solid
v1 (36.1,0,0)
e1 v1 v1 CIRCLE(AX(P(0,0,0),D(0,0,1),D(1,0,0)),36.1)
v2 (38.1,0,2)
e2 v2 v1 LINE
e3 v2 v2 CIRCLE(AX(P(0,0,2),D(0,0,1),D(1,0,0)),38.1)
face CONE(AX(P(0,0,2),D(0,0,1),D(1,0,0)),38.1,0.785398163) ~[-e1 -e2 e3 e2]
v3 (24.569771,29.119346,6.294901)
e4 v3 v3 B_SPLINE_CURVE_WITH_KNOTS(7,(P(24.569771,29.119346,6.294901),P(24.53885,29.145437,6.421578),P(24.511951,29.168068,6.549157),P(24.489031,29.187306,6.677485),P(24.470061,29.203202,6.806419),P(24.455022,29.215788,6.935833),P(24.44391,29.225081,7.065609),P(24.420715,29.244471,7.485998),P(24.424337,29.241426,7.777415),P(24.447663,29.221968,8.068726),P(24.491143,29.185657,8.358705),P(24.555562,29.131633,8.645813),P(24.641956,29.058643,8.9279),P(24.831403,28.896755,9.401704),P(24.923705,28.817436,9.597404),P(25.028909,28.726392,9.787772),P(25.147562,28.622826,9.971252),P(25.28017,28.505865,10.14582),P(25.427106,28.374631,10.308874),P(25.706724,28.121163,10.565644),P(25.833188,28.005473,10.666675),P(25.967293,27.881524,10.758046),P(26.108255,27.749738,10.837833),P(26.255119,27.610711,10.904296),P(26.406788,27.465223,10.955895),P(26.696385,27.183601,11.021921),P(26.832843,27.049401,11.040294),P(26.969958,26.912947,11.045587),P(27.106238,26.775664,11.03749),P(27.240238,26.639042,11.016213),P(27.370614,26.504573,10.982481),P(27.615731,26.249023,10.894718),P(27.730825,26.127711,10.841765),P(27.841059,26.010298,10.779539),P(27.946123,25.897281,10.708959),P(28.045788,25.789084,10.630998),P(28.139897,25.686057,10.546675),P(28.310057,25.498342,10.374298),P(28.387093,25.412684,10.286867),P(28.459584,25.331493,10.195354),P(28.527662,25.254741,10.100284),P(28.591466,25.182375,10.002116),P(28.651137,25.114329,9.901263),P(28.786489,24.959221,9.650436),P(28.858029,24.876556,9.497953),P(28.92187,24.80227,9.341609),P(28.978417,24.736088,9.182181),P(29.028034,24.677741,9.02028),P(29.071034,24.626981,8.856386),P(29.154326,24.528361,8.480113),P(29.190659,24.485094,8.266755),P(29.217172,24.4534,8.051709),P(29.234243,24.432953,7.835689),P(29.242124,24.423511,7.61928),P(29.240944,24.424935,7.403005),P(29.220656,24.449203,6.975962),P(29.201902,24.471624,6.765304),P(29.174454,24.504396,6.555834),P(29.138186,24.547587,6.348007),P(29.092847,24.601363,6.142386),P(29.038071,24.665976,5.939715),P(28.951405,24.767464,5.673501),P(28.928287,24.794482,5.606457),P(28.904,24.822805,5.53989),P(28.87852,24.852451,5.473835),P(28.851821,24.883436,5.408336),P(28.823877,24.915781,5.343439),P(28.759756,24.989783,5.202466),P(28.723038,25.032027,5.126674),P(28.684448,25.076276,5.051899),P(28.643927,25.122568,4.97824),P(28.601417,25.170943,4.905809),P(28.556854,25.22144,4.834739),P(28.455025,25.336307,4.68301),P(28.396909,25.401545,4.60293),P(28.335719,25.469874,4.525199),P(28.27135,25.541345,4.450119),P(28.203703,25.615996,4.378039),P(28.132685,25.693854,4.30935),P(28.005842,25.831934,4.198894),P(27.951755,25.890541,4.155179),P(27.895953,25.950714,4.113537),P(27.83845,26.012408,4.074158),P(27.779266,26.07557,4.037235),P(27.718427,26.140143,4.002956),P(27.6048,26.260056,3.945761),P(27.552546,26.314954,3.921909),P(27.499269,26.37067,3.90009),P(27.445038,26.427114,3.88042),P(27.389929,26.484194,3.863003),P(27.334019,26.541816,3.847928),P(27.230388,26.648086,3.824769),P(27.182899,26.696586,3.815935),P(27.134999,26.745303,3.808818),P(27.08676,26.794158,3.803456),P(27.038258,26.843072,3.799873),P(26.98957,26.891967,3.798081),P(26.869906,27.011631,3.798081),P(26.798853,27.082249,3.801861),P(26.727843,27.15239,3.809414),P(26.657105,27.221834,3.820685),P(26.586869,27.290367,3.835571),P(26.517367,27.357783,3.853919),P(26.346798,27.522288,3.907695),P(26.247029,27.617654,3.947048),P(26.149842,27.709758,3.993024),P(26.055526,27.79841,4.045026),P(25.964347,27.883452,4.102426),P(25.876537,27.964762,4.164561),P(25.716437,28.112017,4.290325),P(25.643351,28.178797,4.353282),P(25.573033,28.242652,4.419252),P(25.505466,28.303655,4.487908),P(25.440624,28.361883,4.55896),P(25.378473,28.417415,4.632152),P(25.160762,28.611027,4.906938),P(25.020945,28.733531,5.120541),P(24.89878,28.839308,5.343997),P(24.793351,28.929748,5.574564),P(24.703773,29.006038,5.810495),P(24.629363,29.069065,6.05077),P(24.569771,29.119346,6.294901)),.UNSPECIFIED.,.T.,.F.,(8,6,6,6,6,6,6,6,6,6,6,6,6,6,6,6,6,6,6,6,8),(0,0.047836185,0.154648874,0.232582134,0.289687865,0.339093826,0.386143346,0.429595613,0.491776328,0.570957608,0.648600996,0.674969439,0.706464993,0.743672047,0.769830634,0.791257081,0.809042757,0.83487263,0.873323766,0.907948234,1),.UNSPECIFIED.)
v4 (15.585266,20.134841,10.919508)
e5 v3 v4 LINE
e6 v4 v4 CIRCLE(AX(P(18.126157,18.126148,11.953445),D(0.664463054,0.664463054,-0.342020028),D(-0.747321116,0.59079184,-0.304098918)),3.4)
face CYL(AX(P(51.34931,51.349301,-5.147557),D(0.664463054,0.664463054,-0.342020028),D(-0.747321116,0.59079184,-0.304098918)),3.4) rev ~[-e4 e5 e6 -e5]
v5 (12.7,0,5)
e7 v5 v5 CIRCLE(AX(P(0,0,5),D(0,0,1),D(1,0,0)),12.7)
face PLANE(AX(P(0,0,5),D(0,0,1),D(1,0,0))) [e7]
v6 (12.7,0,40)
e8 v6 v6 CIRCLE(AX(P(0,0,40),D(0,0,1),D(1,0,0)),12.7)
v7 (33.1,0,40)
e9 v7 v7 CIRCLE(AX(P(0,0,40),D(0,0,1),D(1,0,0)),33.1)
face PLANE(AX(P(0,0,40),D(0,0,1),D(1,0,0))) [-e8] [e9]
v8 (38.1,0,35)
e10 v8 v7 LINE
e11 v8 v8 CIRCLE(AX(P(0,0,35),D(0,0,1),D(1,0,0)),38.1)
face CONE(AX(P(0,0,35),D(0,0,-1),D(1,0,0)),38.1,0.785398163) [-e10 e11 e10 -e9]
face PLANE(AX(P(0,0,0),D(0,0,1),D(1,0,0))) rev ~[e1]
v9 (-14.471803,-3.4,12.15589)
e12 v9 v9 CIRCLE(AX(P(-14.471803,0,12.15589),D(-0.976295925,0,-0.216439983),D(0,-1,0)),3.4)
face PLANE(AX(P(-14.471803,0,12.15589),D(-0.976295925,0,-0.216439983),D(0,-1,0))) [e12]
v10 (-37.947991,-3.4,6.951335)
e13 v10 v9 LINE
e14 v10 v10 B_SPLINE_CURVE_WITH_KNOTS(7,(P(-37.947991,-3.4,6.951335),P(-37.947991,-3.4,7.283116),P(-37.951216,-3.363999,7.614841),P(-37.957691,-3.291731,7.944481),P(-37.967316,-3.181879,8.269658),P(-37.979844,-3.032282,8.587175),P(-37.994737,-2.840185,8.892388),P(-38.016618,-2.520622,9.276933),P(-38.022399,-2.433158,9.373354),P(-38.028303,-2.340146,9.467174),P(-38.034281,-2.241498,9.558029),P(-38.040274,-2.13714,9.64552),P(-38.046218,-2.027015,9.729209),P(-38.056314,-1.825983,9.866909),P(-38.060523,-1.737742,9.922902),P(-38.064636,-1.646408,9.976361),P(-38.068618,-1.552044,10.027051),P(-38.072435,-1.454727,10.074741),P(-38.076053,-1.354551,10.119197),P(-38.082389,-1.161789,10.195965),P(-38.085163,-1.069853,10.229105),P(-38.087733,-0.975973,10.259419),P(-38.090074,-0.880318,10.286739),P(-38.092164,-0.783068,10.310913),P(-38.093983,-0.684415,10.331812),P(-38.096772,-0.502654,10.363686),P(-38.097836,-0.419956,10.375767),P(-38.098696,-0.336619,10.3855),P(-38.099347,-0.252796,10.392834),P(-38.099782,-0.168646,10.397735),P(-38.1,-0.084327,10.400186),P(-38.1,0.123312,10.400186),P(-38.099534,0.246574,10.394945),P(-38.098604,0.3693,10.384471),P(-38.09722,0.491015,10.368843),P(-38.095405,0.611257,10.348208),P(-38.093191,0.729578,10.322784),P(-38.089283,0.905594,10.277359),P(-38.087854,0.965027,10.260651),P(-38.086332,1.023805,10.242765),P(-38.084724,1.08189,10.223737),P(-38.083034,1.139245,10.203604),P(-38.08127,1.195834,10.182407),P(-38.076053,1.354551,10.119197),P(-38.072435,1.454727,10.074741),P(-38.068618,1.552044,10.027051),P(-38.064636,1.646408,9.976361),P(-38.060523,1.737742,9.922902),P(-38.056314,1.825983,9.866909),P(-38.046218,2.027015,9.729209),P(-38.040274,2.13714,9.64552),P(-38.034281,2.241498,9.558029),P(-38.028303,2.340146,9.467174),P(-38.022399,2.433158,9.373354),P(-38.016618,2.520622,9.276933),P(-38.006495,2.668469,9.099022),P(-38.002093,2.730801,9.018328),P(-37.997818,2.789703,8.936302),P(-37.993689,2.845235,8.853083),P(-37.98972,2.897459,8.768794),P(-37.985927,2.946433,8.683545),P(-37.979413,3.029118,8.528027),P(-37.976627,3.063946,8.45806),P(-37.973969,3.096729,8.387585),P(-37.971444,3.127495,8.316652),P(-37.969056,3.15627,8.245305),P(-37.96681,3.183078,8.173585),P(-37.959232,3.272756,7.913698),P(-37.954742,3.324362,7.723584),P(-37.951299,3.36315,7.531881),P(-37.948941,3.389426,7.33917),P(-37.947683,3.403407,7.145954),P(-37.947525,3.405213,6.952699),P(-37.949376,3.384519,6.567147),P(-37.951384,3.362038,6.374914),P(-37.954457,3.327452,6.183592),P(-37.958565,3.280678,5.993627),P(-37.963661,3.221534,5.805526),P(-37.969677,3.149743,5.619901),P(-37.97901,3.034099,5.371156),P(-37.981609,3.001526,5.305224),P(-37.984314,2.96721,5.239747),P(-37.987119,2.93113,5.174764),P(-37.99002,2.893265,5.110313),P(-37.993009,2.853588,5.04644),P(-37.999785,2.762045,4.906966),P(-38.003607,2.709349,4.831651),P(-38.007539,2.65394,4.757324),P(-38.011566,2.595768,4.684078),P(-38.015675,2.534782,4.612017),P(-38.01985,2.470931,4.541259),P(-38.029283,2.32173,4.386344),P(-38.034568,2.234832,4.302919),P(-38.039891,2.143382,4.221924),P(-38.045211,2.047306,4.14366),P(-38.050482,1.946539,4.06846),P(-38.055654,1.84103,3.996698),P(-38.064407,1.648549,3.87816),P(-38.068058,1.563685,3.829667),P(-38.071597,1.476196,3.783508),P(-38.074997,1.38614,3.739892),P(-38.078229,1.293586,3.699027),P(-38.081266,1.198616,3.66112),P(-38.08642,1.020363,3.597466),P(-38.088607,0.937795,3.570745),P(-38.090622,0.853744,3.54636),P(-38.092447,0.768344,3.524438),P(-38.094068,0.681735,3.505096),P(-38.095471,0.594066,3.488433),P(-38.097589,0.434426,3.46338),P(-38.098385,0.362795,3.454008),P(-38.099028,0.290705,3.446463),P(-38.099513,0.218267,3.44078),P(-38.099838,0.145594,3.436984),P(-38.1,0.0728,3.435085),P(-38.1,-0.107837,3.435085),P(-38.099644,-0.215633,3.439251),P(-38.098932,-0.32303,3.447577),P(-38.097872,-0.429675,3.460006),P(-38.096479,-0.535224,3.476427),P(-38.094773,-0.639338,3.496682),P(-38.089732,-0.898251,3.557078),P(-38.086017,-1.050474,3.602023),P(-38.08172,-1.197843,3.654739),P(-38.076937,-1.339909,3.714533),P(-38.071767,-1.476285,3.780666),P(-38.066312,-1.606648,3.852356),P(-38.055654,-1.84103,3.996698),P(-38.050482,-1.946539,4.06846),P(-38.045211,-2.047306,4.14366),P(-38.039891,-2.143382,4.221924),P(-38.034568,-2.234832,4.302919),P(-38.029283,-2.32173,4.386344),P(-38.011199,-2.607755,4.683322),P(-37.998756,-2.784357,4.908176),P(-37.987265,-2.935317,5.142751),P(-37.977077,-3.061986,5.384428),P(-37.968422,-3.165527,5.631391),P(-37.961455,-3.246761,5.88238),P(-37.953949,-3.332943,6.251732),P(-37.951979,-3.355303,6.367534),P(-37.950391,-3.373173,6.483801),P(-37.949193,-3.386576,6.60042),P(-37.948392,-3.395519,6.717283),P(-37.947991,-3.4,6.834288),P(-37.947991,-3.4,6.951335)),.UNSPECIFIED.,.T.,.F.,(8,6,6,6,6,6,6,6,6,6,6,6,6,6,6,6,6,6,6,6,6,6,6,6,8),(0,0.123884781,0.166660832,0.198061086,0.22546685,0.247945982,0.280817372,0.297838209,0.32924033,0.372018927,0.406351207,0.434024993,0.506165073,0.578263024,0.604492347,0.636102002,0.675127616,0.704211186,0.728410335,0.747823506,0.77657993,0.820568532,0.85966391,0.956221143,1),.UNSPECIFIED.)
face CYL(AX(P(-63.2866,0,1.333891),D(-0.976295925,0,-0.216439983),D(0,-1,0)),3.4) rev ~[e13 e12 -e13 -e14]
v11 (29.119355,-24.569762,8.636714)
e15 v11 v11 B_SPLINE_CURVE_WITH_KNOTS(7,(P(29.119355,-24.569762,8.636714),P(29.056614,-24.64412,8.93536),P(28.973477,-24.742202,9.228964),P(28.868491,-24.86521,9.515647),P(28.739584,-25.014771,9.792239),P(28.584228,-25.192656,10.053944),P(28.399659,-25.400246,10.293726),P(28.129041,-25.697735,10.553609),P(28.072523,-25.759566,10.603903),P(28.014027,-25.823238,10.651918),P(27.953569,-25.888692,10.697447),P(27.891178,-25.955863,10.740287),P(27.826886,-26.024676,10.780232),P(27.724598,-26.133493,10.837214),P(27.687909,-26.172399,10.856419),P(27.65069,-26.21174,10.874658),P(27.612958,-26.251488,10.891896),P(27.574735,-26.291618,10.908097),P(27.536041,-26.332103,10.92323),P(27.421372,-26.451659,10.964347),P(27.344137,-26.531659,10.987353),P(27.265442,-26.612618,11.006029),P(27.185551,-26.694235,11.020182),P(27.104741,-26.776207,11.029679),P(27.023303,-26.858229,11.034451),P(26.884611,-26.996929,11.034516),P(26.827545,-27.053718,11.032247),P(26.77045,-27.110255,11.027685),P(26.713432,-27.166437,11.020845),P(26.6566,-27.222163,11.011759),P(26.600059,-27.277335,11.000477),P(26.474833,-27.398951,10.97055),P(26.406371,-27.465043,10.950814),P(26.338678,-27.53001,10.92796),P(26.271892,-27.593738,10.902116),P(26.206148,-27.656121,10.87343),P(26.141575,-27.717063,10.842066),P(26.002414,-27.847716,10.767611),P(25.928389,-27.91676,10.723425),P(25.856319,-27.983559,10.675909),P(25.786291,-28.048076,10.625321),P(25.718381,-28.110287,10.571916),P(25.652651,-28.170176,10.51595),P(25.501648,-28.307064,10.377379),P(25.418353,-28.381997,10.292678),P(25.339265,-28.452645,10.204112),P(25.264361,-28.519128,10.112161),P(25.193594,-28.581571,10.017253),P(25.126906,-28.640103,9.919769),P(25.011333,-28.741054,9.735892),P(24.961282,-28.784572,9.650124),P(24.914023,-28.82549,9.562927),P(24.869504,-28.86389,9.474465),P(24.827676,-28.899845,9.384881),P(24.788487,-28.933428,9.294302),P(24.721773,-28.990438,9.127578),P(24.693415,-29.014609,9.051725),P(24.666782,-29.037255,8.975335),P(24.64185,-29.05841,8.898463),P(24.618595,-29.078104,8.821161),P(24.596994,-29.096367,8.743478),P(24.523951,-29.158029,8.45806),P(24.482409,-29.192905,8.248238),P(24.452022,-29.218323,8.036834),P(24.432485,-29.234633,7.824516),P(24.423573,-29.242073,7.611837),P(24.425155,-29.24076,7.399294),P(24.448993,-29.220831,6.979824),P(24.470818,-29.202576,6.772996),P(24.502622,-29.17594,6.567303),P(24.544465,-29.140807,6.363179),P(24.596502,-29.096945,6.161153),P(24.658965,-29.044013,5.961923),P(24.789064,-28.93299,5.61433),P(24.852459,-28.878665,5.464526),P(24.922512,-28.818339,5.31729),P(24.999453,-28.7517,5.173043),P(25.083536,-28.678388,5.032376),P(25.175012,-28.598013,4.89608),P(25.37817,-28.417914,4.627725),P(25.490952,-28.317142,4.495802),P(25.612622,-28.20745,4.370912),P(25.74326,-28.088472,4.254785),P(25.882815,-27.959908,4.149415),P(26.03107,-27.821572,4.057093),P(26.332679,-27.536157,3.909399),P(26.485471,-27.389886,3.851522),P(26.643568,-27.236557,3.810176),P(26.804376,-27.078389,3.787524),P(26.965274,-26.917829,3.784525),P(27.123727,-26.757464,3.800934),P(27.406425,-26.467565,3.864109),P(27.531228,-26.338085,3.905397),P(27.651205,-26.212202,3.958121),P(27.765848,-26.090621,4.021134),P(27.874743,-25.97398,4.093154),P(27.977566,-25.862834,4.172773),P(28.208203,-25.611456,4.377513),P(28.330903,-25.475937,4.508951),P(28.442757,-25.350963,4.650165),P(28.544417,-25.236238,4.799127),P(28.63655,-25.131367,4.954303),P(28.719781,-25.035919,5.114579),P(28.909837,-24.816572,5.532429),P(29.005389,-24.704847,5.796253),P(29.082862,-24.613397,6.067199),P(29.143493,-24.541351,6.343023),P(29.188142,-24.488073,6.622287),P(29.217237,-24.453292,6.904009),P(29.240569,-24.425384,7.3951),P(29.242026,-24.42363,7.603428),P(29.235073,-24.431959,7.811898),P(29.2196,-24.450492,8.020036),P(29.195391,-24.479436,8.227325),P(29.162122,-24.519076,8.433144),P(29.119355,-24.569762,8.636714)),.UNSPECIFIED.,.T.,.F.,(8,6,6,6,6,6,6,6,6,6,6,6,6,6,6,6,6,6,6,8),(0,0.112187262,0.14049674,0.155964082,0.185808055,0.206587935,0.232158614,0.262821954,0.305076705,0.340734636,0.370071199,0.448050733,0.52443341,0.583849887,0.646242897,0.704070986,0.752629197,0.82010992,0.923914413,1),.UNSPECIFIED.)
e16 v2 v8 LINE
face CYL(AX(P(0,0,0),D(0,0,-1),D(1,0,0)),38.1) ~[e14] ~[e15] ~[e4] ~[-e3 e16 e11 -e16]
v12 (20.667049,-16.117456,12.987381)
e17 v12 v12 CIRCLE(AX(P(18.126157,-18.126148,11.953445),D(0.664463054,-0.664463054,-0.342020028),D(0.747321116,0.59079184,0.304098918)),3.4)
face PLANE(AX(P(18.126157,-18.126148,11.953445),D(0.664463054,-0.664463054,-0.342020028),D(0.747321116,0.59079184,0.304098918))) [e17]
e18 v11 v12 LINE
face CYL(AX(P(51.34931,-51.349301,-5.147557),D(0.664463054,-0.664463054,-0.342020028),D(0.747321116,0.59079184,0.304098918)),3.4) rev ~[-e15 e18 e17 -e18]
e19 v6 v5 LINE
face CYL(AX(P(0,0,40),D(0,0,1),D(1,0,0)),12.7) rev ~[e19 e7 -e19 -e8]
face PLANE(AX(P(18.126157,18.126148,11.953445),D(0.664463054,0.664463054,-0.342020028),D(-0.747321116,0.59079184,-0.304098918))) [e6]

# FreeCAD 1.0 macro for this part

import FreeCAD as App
import Part
import Sketcher
Q = App.Units.Quantity


def edges_at(feature, points):
    """Names of the edges that pass closest to the given points."""
    edges = feature.Shape.Edges
    near = lambda p: min(range(len(edges)), key=lambda i: edges[i].distToShape(Part.Vertex(*p))[0])
    return sorted({f"Edge{near(p) + 1}" for p in points})

doc = App.newDocument("Part")
params = doc.addObject("Spreadsheet::Sheet", "Params")
for row, (alias, value) in enumerate([
    ("sketch1_diameter", "76.2 mm"),
    ("pad1_length", "40 mm"),
    ("sketch2_diameter", "25.4 mm"),
    ("pocket1_length", "35 mm"),
    ("chamfer_size", "5 mm"),
    ("sketch3_diameter", "6.8 mm"),
    ("pocket2_length", "50 mm"),
    ("chamfer2_size", "2 mm"),
    ("sketch4_diameter", "6.8 mm"),
    ("pocket3_length", "50 mm"),
    ("sketch5_diameter", "6.8 mm"),
    ("pocket4_length", "50 mm"),
], start=1):
    params.set(f"A{row}", alias)
    params.set(f"B{row}", "=" + value)
    params.setAlias(f"B{row}", alias)

body = doc.addObject("PartDesign::Body", "Body")

sketch1 = doc.addObject("Sketcher::SketchObject", "Sketch")
body.addObject(sketch1)
sketch1.AttachmentSupport = (doc.XY_Plane, [""])
sketch1.MapMode = "FlatFace"
sketch1.addGeometry(Part.Circle(App.Vector(0, 0, 0), App.Vector(0, 0, 1), 38), False)
sketch1.addConstraint([
    Sketcher.Constraint("Coincident", 0, 3, -1, 1),
    Sketcher.Constraint("Diameter", 0, Q("76.2 mm")),
])
sketch1.setExpression("Constraints[1]", "Params.sketch1_diameter")
pad1 = doc.addObject("PartDesign::Pad", "Pad")
body.addObject(pad1)
pad1.Profile = sketch1
pad1.setExpression("Length", "Params.pad1_length")

sketch2 = doc.addObject("Sketcher::SketchObject", "Sketch001")
body.addObject(sketch2)
sketch2.AttachmentSupport = (doc.XY_Plane, [""])
sketch2.MapMode = "FlatFace"
sketch2.AttachmentOffset = App.Placement(App.Vector(0, 0, 40), App.Rotation())
sketch2.addGeometry(Part.Circle(App.Vector(0, 0, 0), App.Vector(0, 0, 1), 13), False)
sketch2.addConstraint([
    Sketcher.Constraint("Coincident", 0, 3, -1, 1),
    Sketcher.Constraint("Diameter", 0, Q("25.4 mm")),
])
sketch2.setExpression("Constraints[1]", "Params.sketch2_diameter")
pocket1 = doc.addObject("PartDesign::Pocket", "Pocket")
body.addObject(pocket1)
pocket1.Profile = sketch2
pocket1.setExpression("Length", "Params.pocket1_length")
doc.recompute()

chamfer = doc.addObject("PartDesign::Chamfer", "Chamfer")
body.addObject(chamfer)
chamfer.Base = (pocket1, edges_at(pocket1, [(-38.1, 0, 40)]))
chamfer.setExpression("Size", "Params.chamfer_size")

sketch3 = doc.addObject("Sketcher::SketchObject", "Sketch002")
body.addObject(sketch3)
sketch3.Placement = App.Placement(App.Vector(46.512412, -46.512412, -23.94141), App.Rotation(App.Vector(0.747321116, 0.59079184, 0.304098918), App.Vector(0.000000146, -0.457661285, 0.889126621), App.Vector(0.664463054, -0.664463054, -0.342020028), "ZXY"))
sketch3.addGeometry(Part.Circle(App.Vector(6.5, 18.9, 0), App.Vector(0, 0, 1), 3.4), False)
sketch3.addConstraint([
    Sketcher.Constraint("Diameter", 0, Q("6.8 mm")),
    Sketcher.Constraint("DistanceX", -1, 1, 0, 3, Q("6.472312 mm")),
    Sketcher.Constraint("DistanceY", -1, 1, 0, 3, Q("18.923773 mm")),
])
sketch3.setExpression("Constraints[0]", "Params.sketch3_diameter")
pocket2 = doc.addObject("PartDesign::Pocket", "Pocket001")
body.addObject(pocket2)
pocket2.Profile = sketch3
pocket2.setExpression("Length", "Params.pocket2_length")
doc.recompute()

chamfer2 = doc.addObject("PartDesign::Chamfer", "Chamfer001")
body.addObject(chamfer2)
chamfer2.Base = (pocket2, edges_at(pocket2, [(-38.1, 0, 0)]))
chamfer2.setExpression("Size", "Params.chamfer2_size")

sketch4 = doc.addObject("Sketcher::SketchObject", "Sketch003")
body.addObject(sketch4)
sketch4.Placement = App.Placement(App.Vector(46.512412, 46.512412, -23.94141), App.Rotation(App.Vector(-0.747321116, 0.59079184, -0.304098918), App.Vector(0.000000146, 0.457661285, 0.889126621), App.Vector(0.664463054, 0.664463054, -0.342020028), "ZXY"))
sketch4.addGeometry(Part.Circle(App.Vector(-6.5, 18.9, 0), App.Vector(0, 0, 1), 3.4), False)
sketch4.addConstraint([
    Sketcher.Constraint("Diameter", 0, Q("6.8 mm")),
    Sketcher.Constraint("DistanceX", 0, 3, -1, 1, Q("6.472312 mm")),
    Sketcher.Constraint("DistanceY", -1, 1, 0, 3, Q("18.923773 mm")),
])
sketch4.setExpression("Constraints[0]", "Params.sketch4_diameter")
pocket3 = doc.addObject("PartDesign::Pocket", "Pocket002")
body.addObject(pocket3)
pocket3.Profile = sketch4
pocket3.setExpression("Length", "Params.pocket3_length")

sketch5 = doc.addObject("Sketcher::SketchObject", "Sketch004")
body.addObject(sketch5)
sketch5.Placement = App.Placement(App.Vector(-60.04, 0, -13.310548), App.Rotation(App.Vector(0, -1, 0), App.Vector(-0.216439983, 0, 0.976295925), App.Vector(-0.976295925, 0, -0.216439983), "ZXY"))
sketch5.addGeometry(Part.Circle(App.Vector(0, 15, 0), App.Vector(0, 0, 1), 3.4), False)
sketch5.addConstraint([
    Sketcher.Constraint("PointOnObject", 0, 3, -2),
    Sketcher.Constraint("Diameter", 0, Q("6.8 mm")),
    Sketcher.Constraint("DistanceY", -1, 1, 0, 3, Q("15 mm")),
])
sketch5.setExpression("Constraints[1]", "Params.sketch5_diameter")
pocket4 = doc.addObject("PartDesign::Pocket", "Pocket003")
body.addObject(pocket4)
pocket4.Profile = sketch5
pocket4.setExpression("Length", "Params.pocket4_length")

doc.recompute()
